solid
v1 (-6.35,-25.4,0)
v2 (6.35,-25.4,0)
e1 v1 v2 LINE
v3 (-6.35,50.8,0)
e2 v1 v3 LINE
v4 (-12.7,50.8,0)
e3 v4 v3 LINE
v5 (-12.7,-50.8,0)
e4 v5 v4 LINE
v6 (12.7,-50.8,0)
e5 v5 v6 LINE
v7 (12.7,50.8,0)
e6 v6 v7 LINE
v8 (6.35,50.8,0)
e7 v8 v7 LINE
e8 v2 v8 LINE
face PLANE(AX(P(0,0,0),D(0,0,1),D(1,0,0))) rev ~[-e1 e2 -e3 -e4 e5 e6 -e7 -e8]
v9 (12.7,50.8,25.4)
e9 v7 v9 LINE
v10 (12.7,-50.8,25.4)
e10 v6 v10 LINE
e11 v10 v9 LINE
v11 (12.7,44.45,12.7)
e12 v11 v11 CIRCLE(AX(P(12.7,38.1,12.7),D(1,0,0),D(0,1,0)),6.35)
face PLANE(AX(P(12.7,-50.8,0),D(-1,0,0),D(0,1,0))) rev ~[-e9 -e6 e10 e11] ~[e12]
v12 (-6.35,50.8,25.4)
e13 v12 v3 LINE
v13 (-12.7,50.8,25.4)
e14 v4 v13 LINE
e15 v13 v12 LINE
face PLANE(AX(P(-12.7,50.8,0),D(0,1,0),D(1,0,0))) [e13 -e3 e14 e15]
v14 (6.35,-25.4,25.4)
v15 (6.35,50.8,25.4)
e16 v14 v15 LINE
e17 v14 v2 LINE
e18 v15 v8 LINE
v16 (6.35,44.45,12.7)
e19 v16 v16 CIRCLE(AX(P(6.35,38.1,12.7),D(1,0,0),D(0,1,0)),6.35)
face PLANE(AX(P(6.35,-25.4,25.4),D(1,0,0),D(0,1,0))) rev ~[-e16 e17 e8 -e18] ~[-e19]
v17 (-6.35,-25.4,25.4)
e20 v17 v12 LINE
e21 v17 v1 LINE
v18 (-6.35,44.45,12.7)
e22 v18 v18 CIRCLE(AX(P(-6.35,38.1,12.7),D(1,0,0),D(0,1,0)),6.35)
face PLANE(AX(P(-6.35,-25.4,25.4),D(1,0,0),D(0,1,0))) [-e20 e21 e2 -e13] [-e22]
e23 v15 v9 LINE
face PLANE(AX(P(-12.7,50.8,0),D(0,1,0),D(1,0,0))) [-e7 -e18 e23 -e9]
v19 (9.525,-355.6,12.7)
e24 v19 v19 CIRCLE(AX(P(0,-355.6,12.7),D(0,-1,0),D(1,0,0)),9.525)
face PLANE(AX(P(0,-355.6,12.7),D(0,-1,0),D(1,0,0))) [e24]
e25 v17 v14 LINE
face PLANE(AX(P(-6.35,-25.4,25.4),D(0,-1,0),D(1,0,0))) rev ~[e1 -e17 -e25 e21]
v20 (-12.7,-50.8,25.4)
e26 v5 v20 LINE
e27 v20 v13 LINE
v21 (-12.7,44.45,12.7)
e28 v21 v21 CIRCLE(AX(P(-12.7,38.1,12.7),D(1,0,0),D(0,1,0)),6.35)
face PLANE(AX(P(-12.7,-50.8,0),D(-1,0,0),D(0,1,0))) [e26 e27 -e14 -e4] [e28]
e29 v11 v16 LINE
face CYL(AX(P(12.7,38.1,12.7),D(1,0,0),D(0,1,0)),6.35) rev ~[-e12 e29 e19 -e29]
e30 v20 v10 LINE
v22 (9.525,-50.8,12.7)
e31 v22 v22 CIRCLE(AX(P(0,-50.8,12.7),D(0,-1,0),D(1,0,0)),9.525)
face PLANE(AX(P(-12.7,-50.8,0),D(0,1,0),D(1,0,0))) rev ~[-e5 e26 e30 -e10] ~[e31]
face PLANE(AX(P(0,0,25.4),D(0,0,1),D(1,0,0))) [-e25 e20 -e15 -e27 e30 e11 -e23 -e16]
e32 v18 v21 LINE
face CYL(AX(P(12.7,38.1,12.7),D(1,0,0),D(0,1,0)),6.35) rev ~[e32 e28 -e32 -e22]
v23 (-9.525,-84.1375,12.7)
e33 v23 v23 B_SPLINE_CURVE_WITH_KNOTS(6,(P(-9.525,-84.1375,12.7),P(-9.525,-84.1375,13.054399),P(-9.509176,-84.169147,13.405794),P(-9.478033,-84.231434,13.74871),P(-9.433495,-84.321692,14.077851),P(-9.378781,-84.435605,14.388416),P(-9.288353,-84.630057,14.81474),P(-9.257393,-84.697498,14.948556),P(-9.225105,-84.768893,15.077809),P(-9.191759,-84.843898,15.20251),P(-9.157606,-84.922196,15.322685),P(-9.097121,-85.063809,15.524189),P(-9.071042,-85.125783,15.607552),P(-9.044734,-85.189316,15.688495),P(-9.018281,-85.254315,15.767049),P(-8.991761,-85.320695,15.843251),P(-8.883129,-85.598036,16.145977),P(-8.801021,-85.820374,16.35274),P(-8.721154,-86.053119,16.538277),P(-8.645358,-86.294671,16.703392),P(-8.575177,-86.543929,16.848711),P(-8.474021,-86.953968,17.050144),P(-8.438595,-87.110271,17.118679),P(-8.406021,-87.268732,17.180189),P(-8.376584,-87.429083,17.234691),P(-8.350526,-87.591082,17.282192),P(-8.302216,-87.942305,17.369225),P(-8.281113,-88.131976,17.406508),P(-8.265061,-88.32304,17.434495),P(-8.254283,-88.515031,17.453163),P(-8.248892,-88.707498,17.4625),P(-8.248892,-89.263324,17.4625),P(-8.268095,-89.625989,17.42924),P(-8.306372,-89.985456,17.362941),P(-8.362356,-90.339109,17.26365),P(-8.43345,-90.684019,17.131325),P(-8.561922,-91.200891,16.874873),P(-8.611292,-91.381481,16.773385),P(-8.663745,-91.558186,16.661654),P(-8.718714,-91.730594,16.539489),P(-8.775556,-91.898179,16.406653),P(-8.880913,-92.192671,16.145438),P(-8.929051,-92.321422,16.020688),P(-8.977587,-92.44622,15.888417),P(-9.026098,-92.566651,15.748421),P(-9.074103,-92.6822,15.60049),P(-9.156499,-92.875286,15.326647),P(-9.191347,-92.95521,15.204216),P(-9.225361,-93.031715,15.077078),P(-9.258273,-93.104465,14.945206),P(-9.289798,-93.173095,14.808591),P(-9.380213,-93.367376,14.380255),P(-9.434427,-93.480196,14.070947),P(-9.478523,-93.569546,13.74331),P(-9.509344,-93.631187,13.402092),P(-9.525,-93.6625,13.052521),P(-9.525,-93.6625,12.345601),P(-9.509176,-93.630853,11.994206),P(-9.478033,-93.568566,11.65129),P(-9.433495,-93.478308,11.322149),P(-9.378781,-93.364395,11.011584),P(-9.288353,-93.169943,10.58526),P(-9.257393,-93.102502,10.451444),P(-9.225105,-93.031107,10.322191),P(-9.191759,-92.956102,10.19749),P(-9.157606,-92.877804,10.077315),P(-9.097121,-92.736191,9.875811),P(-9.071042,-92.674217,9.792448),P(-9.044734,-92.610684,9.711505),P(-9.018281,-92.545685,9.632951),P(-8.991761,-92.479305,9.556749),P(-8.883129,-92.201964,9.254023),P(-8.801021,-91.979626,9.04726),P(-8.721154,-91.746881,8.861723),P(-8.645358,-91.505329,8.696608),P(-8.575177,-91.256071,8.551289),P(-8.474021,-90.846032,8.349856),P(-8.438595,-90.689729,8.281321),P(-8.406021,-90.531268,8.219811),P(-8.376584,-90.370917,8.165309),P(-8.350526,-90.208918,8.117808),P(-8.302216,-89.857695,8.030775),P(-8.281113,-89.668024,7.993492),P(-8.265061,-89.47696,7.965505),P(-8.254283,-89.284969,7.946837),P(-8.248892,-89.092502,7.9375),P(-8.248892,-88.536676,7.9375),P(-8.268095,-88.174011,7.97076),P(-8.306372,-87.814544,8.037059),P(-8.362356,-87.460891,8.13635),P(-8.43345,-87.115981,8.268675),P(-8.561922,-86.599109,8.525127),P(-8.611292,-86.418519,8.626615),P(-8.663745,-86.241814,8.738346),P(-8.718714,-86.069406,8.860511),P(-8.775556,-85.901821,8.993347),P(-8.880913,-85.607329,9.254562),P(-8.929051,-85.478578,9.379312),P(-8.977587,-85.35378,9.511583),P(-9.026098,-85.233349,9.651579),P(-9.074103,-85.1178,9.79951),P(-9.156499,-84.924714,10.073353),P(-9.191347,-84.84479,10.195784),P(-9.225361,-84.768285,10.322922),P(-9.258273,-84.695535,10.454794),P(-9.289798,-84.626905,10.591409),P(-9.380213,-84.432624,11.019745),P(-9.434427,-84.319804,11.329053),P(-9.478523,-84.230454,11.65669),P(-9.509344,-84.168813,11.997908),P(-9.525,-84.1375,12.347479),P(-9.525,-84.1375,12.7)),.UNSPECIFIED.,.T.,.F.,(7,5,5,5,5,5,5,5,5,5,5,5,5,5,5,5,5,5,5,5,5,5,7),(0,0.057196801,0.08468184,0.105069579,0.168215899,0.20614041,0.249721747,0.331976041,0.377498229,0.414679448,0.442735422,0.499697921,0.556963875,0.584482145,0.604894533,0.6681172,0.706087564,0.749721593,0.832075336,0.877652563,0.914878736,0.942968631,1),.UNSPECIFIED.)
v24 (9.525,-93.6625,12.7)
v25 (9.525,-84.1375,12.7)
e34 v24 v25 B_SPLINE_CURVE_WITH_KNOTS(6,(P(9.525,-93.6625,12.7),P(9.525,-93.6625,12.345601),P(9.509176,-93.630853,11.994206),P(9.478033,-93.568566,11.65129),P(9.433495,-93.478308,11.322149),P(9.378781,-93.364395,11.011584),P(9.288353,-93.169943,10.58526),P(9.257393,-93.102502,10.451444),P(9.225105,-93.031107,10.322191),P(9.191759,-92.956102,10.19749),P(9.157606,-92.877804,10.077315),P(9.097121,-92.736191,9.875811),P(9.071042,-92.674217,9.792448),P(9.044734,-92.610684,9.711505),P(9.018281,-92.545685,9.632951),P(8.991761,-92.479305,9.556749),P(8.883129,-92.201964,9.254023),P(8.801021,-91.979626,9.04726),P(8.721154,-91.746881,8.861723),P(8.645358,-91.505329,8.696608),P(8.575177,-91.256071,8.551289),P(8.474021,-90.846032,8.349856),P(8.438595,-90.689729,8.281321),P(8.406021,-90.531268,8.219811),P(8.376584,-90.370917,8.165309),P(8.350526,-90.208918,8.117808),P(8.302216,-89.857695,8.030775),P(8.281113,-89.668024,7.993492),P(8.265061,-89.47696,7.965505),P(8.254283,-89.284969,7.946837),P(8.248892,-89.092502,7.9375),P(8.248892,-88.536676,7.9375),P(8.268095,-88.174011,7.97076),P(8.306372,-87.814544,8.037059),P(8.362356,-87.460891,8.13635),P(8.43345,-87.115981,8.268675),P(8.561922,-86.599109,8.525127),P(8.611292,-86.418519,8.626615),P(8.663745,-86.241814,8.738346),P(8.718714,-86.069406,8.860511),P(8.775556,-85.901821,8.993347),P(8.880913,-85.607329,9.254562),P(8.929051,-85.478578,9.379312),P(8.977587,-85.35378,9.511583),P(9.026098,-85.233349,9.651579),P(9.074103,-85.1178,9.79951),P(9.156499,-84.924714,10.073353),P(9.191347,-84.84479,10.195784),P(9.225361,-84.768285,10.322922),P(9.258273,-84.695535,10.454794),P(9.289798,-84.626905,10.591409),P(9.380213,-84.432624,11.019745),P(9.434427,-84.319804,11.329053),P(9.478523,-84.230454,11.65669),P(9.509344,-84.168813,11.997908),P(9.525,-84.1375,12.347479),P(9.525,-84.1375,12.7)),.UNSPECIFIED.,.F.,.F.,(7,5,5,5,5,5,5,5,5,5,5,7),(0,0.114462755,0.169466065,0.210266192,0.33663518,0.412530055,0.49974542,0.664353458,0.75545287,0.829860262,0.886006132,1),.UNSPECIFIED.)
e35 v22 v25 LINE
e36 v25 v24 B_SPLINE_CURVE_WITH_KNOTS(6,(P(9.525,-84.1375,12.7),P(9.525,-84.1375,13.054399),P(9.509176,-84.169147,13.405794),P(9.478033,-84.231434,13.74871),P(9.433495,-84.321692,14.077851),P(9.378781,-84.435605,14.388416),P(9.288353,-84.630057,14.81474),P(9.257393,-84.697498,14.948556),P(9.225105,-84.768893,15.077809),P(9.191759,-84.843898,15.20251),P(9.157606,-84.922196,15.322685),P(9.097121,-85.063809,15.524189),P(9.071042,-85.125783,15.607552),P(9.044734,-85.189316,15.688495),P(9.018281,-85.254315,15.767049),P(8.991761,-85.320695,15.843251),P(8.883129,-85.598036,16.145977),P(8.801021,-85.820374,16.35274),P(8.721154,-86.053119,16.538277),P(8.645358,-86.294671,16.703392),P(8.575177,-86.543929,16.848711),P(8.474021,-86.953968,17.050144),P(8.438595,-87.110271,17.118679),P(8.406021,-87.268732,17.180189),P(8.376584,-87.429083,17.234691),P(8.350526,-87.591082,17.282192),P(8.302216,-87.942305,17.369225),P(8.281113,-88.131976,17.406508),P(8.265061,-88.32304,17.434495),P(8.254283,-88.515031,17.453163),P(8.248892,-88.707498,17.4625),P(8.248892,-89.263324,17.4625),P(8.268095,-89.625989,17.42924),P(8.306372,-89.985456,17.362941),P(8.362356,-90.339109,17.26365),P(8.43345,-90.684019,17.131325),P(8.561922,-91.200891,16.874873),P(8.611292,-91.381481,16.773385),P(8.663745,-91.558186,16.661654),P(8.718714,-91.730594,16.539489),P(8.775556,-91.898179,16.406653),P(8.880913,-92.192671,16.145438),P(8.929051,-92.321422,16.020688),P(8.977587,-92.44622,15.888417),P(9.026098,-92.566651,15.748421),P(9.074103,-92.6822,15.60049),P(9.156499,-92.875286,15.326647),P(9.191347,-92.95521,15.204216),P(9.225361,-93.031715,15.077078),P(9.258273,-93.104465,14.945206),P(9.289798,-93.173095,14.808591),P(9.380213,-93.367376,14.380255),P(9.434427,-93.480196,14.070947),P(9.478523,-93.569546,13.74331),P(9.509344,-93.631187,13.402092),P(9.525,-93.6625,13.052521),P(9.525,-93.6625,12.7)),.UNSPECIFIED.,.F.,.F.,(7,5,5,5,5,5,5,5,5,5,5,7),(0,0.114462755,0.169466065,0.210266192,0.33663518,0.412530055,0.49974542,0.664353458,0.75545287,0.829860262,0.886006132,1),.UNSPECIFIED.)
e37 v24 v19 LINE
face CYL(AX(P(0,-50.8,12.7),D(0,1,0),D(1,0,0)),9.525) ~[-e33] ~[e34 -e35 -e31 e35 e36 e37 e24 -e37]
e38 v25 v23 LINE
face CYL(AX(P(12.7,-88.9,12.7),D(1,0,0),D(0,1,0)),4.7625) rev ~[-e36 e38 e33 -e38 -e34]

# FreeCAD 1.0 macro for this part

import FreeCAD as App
import Part
import Sketcher

V = App.Vector
Q = App.Units.Quantity

doc = App.newDocument("Part")
body = doc.addObject("PartDesign::Body", "Body")

sketch1 = body.newObject("Sketcher::SketchObject", "Sketch")
sketch1.AttachmentSupport = (doc.getObject("XY_Plane"), [""])
sketch1.MapMode = "FlatFace"
sketch1.addGeometry([
    Part.LineSegment(V(-13, 51, 0), V(-13, -51, 0)),
    Part.LineSegment(V(-13, -51, 0), V(13, -51, 0)),
    Part.LineSegment(V(13, -51, 0), V(13, 51, 0)),
    Part.LineSegment(V(13, 51, 0), V(-13, 51, 0)),
], False)
sketch1.addConstraint([
    Sketcher.Constraint("Coincident", 0, 2, 1, 1),
    Sketcher.Constraint("Coincident", 1, 2, 2, 1),
    Sketcher.Constraint("Coincident", 2, 2, 3, 1),
    Sketcher.Constraint("Coincident", 3, 2, 0, 1),
    Sketcher.Constraint("Vertical", 0),
    Sketcher.Constraint("Horizontal", 1),
    Sketcher.Constraint("Vertical", 2),
    Sketcher.Constraint("Horizontal", 3),
    Sketcher.Constraint("Symmetric", 0, 2, 2, 2, -1, 1),
    Sketcher.Constraint("DistanceX", 1, 1, 1, 2, Q("1 in")),
    Sketcher.Constraint("DistanceY", 0, 2, 0, 1, Q("4 in")),
])
pad1 = body.newObject("PartDesign::Pad", "Pad")
pad1.Profile = sketch1
pad1.Length = Q("1 in")

sketch2 = body.newObject("Sketcher::SketchObject", "Sketch001")
sketch2.AttachmentSupport = (doc.getObject("XY_Plane"), [""])
sketch2.MapMode = "FlatFace"
sketch2.AttachmentOffset = App.Placement(V(0, 0, 1 * 25.4), App.Rotation())
sketch2.addGeometry([
    Part.LineSegment(V(-6, 76, 0), V(-6, -25, 0)),
    Part.LineSegment(V(-6, -25, 0), V(6, -25, 0)),
    Part.LineSegment(V(6, -25, 0), V(6, 76, 0)),
    Part.LineSegment(V(6, 76, 0), V(-6, 76, 0)),
], False)
sketch2.addConstraint([
    Sketcher.Constraint("Coincident", 0, 2, 1, 1),
    Sketcher.Constraint("Coincident", 1, 2, 2, 1),
    Sketcher.Constraint("Coincident", 2, 2, 3, 1),
    Sketcher.Constraint("Coincident", 3, 2, 0, 1),
    Sketcher.Constraint("Vertical", 0),
    Sketcher.Constraint("Horizontal", 1),
    Sketcher.Constraint("Vertical", 2),
    Sketcher.Constraint("Horizontal", 3),
    Sketcher.Constraint("DistanceY", 0, 2, 0, 1, Q("4 in")),
    Sketcher.Constraint("DistanceX", 1, 1, 1, 2, Q("0.5 in")),
    Sketcher.Constraint("DistanceY", 0, 2, -1, 1, Q("1 in")),
    Sketcher.Constraint("DistanceX", 0, 2, -1, 1, Q("0.25 in")),
])
pocket1 = body.newObject("PartDesign::Pocket", "Pocket")
pocket1.Profile = sketch2
pocket1.Type = "ThroughAll"

sketch3 = body.newObject("Sketcher::SketchObject", "Sketch002")
sketch3.AttachmentSupport = (doc.getObject("YZ_Plane"), [""])
sketch3.MapMode = "FlatFace"
sketch3.AttachmentOffset = App.Placement(V(0, 0, 0.5 * 25.4), App.Rotation())
sketch3.addGeometry(Part.Circle(V(38, 13, 0), V(0, 0, 1), 6), False)
sketch3.addConstraint([
    Sketcher.Constraint("Diameter", 0, Q("0.5 in")),
    Sketcher.Constraint("DistanceX", -1, 1, 0, 3, Q("1.5 in")),
    Sketcher.Constraint("DistanceY", -1, 1, 0, 3, Q("0.5 in")),
])
pocket2 = body.newObject("PartDesign::Pocket", "Pocket001")
pocket2.Profile = sketch3
pocket2.Type = "ThroughAll"

sketch4 = body.newObject("Sketcher::SketchObject", "Sketch003")
sketch4.AttachmentSupport = (doc.getObject("XZ_Plane"), [""])
sketch4.MapMode = "FlatFace"
sketch4.AttachmentOffset = App.Placement(V(0, 0, 2 * 25.4), App.Rotation())
sketch4.addGeometry(Part.Circle(V(0, 13, 0), V(0, 0, 1), 10), False)
sketch4.addConstraint([
    Sketcher.Constraint("PointOnObject", 0, 3, -2),
    Sketcher.Constraint("Diameter", 0, Q("0.75 in")),
    Sketcher.Constraint("DistanceY", -1, 1, 0, 3, Q("0.5 in")),
])
pad2 = body.newObject("PartDesign::Pad", "Pad001")
pad2.Profile = sketch4
pad2.Length = Q("12 in")

sketch5 = body.newObject("Sketcher::SketchObject", "Sketch004")
sketch5.AttachmentSupport = (doc.getObject("YZ_Plane"), [""])
sketch5.MapMode = "FlatFace"
sketch5.AttachmentOffset = App.Placement(V(0, 0, 0.5 * 25.4), App.Rotation())
sketch5.addGeometry(Part.Circle(V(-88.9, 12.7, 0), V(0, 0, 1), 4.8), False)
sketch5.addConstraint([
    Sketcher.Constraint("Diameter", 0, Q("0.375 in")),
    Sketcher.Constraint("DistanceX", 0, 3, -1, 1, Q("3.5 in")),
    Sketcher.Constraint("DistanceY", -1, 1, 0, 3, Q("0.5 in")),
])
pocket3 = body.newObject("PartDesign::Pocket", "Pocket002")
pocket3.Profile = sketch5
pocket3.Type = "ThroughAll"

doc.recompute()
